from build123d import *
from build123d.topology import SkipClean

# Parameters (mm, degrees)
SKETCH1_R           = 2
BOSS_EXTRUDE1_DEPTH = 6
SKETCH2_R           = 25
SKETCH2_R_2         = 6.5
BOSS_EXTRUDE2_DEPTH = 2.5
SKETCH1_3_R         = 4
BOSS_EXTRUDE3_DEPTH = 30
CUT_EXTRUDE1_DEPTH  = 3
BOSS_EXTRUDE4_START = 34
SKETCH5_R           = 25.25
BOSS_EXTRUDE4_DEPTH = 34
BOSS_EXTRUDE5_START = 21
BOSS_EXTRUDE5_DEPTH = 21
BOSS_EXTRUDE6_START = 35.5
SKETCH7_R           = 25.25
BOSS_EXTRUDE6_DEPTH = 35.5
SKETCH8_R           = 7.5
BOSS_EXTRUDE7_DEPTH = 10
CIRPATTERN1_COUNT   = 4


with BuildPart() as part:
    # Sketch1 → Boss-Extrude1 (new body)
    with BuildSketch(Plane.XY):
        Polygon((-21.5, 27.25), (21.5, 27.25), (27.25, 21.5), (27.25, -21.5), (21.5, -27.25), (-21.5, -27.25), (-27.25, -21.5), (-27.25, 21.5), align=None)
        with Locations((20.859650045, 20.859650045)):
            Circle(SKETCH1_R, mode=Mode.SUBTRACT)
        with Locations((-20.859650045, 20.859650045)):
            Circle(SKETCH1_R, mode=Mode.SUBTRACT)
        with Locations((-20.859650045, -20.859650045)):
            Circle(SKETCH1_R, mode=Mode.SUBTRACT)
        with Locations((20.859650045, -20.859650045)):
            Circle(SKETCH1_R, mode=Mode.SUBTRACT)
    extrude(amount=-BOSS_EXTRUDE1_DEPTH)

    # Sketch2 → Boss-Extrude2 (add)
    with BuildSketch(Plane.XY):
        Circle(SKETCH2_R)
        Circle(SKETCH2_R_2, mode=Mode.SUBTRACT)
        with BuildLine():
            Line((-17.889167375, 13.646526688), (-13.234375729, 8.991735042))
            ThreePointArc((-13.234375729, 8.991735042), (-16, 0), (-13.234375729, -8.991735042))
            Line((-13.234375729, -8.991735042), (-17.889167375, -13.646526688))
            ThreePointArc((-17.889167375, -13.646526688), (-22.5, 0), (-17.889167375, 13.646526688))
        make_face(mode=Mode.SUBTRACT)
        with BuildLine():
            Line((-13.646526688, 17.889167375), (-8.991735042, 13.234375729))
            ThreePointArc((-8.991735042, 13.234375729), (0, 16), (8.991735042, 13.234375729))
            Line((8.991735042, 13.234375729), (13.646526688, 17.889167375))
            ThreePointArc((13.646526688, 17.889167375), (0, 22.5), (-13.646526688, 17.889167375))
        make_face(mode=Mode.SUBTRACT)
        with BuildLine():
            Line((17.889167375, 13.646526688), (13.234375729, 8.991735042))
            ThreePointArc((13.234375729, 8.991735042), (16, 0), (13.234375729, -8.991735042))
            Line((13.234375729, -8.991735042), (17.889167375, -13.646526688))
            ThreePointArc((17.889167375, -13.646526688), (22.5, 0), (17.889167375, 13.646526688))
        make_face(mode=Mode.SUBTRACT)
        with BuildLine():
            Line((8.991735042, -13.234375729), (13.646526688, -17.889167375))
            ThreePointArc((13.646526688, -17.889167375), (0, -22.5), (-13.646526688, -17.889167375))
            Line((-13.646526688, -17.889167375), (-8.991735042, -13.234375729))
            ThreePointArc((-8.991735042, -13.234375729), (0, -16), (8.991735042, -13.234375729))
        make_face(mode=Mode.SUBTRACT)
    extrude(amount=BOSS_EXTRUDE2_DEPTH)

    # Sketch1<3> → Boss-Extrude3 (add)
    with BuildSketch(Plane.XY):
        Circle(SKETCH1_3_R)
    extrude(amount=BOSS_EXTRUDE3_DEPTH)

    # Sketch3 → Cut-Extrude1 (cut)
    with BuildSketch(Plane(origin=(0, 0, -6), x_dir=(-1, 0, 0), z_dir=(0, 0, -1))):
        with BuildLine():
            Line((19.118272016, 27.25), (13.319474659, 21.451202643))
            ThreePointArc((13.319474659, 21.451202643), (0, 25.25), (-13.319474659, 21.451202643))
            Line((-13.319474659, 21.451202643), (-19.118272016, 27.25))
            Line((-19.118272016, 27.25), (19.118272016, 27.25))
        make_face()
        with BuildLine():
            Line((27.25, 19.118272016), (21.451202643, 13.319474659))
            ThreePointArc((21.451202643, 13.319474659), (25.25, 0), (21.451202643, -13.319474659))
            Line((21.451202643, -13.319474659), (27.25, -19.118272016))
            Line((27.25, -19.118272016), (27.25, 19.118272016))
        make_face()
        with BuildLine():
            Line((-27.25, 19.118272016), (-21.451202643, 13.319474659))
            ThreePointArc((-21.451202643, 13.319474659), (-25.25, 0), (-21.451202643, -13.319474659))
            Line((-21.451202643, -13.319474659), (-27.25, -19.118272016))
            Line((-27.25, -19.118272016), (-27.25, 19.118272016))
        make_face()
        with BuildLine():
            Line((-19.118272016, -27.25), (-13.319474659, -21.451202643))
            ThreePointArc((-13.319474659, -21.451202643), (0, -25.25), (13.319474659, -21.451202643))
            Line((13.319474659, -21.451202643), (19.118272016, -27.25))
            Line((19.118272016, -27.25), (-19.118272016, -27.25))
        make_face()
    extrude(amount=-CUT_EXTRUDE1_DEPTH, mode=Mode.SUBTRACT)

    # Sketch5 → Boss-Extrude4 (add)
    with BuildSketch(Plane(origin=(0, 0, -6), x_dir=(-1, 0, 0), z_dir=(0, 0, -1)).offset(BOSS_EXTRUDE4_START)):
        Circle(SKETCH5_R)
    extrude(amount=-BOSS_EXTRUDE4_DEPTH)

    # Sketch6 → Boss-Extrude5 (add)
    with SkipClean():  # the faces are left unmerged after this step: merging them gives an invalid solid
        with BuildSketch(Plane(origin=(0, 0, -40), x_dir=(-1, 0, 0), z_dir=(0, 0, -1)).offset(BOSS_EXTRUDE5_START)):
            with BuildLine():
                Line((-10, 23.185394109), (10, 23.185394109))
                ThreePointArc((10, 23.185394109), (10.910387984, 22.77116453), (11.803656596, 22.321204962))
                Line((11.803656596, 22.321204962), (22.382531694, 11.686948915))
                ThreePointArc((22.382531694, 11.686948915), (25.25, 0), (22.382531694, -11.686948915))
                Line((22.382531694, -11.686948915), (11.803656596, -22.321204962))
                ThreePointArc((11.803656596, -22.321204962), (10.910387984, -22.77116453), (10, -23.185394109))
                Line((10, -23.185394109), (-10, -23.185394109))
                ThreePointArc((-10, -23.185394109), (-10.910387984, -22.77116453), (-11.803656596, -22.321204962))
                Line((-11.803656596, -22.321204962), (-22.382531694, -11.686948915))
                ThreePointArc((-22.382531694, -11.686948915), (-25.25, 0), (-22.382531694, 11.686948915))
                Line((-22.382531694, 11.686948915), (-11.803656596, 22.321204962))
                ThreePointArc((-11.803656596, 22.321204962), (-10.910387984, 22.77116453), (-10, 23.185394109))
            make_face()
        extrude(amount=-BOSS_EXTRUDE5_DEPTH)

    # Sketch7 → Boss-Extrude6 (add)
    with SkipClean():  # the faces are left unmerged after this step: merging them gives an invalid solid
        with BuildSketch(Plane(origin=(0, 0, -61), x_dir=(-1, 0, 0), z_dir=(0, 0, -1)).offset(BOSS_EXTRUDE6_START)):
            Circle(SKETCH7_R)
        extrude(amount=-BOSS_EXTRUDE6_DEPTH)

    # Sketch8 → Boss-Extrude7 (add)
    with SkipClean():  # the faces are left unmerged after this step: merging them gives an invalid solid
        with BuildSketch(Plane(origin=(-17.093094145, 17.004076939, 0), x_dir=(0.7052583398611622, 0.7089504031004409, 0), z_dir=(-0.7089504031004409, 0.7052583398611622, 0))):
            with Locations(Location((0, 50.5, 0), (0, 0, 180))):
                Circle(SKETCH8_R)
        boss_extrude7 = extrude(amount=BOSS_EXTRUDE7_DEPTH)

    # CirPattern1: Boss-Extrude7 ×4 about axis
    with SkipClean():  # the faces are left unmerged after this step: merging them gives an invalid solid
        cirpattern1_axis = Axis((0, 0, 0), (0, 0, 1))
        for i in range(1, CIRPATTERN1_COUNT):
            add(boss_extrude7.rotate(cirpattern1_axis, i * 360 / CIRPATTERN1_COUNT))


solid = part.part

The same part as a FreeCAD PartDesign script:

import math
import FreeCAD as App
import Part
import Sketcher
from FreeCAD import Vector


def add_polygon(sketch, points):
    """Adds a closed chain of lines whose ends are joined by coincident constraints."""
    first, n = sketch.GeometryCount, len(points)
    for a, b in zip(points, points[1:] + points[:1]):
        sketch.addGeometry(Part.LineSegment(App.Vector(*a, 0), App.Vector(*b, 0)), False)
    for i in range(n):
        sketch.addConstraint(Sketcher.Constraint("Coincident", first + i, 2, first + (i + 1) % n, 1))

doc = App.newDocument("Part")
body = doc.addObject("PartDesign::Body", "Body")

# Sketch on XY plane
sketch1 = doc.addObject("Sketcher::SketchObject", "Sketch")
body.addObject(sketch1)
sketch1.AttachmentSupport = (doc.XY_Plane, [""])
sketch1.MapMode = "FlatFace"
add_polygon(sketch1, [(21.5, 27.2), (-21.5, 27.2), (-27.2, 21.5), (-27.2, -21.5), (-21.5, -27.2), (21.5, -27.2), (27.2, -21.5), (27.2, 21.5)])  # lines 0-7
sketch1.addGeometry(Part.Circle(Vector(20.9, -20.9, 0), Vector(0, 0, 1), 2), False)  # 8
sketch1.addGeometry(Part.Circle(Vector(-20.9, -20.9, 0), Vector(0, 0, 1), 2), False)  # 9
sketch1.addGeometry(Part.Circle(Vector(20.9, 20.9, 0), Vector(0, 0, 1), 2), False)  # 10
sketch1.addGeometry(Part.Circle(Vector(-20.9, 20.9, 0), Vector(0, 0, 1), 2), False)  # 11
sketch1.addConstraint([
    Sketcher.Constraint("Horizontal", 0),
    Sketcher.Constraint("Vertical", 2),
    Sketcher.Constraint("Horizontal", 4),
    Sketcher.Constraint("Vertical", 6),
    Sketcher.Constraint("Equal", 8, 9),
    Sketcher.Constraint("Equal", 9, 10),
    Sketcher.Constraint("Equal", 10, 11),
    Sketcher.Constraint("Symmetric", 9, 3, 10, 3, -1, 1),
    Sketcher.Constraint("Symmetric", 8, 3, 11, 3, -1, 1),
    Sketcher.Constraint("Symmetric", 0, 2, 4, 2, -1, 1),
    Sketcher.Constraint("Symmetric", 1, 2, 5, 2, -1, 1),
    Sketcher.Constraint("Symmetric", 8, 3, 9, 3, -2),
    Sketcher.Constraint("Perpendicular", 1, 3),
    Sketcher.Constraint("Perpendicular", 5, 7),
    Sketcher.Constraint("Horizontal", 2, 2, 5, 2),
    Sketcher.Constraint("Horizontal", 1, 2, 6, 2),
    Sketcher.Constraint("Vertical", 0, 2, 3, 2),
    Sketcher.Constraint("Equal", 4, 2),
    Sketcher.Constraint("Diameter", 8, 4.0),
    Sketcher.Constraint("DistanceX", 0, 2, 0, 1, 43.0),
    Sketcher.Constraint("DistanceY", -1, 1, 0, 2, 27.25),
    Sketcher.Constraint("DistanceX", 9, 3, 8, 3, 41.7193),
    Sketcher.Constraint("DistanceY", 8, 3, 10, 3, 41.7193),
])
pad1 = doc.addObject("PartDesign::Pad", "Pad")
body.addObject(pad1)
pad1.Profile = sketch1
pad1.Length = 6
pad1.Reversed = True

# Sketch on XY plane
sketch2 = doc.addObject("Sketcher::SketchObject", "Sketch001")
body.addObject(sketch2)
sketch2.AttachmentSupport = (doc.XY_Plane, [""])
sketch2.MapMode = "FlatFace"
sketch2.addGeometry([
    Part.Circle(Vector(0, 0, 0), Vector(0, 0, 1), 25),  # 0
    Part.ArcOfCircle(Part.Circle(Vector(0, 0, 0), Vector(0, 0, 1), 16), math.radians(-124), math.radians(-56)),  # 1
    Part.LineSegment(Vector(9, -13, 0), Vector(14, -18, 0)),  # 2
    Part.ArcOfCircle(Part.Circle(Vector(0, 0, 0), Vector(0, 0, 1), 23), math.radians(-127), math.radians(-53)),  # 3
    Part.LineSegment(Vector(-14, -18, 0), Vector(-9, -13, 0)),  # 4
    Part.ArcOfCircle(Part.Circle(Vector(0, 0, 0), Vector(0, 0, 1), 23), math.radians(143), math.radians(217)),  # 5
    Part.LineSegment(Vector(-18, 14, 0), Vector(-13, 9, 0)),  # 6
    Part.ArcOfCircle(Part.Circle(Vector(0, 0, 0), Vector(0, 0, 1), 16), math.radians(146), math.radians(214)),  # 7
    Part.LineSegment(Vector(-13, -9, 0), Vector(-18, -14, 0)),  # 8
    Part.Circle(Vector(0, 0, 0), Vector(0, 0, 1), 6),  # 9
    Part.LineSegment(Vector(13, 9, 0), Vector(18, 14, 0)),  # 10
    Part.ArcOfCircle(Part.Circle(Vector(0, 0, 0), Vector(0, 0, 1), 23), math.radians(-37), math.radians(37)),  # 11
    Part.LineSegment(Vector(18, -14, 0), Vector(13, -9, 0)),  # 12
    Part.ArcOfCircle(Part.Circle(Vector(0, 0, 0), Vector(0, 0, 1), 16), math.radians(-34), math.radians(34)),  # 13
    Part.LineSegment(Vector(-9, 13, 0), Vector(-14, 18, 0)),  # 14
    Part.ArcOfCircle(Part.Circle(Vector(0, 0, 0), Vector(0, 0, 1), 23), math.radians(53), math.radians(127)),  # 15
    Part.LineSegment(Vector(14, 18, 0), Vector(9, 13, 0)),  # 16
    Part.ArcOfCircle(Part.Circle(Vector(0, 0, 0), Vector(0, 0, 1), 16), math.radians(56), math.radians(124)),  # 17
], False)
sketch2.addConstraint([
    Sketcher.Constraint("Coincident", 1, 2, 2, 1),
    Sketcher.Constraint("Coincident", 2, 2, 3, 2),
    Sketcher.Constraint("Coincident", 3, 1, 4, 1),
    Sketcher.Constraint("Coincident", 4, 2, 1, 1),
    Sketcher.Constraint("Coincident", 5, 1, 6, 1),
    Sketcher.Constraint("Coincident", 6, 2, 7, 1),
    Sketcher.Constraint("Coincident", 7, 2, 8, 1),
    Sketcher.Constraint("Coincident", 8, 2, 5, 2),
    Sketcher.Constraint("Coincident", 10, 2, 11, 2),
    Sketcher.Constraint("Coincident", 11, 1, 12, 1),
    Sketcher.Constraint("Coincident", 12, 2, 13, 1),
    Sketcher.Constraint("Coincident", 13, 2, 10, 1),
    Sketcher.Constraint("Coincident", 14, 2, 15, 2),
    Sketcher.Constraint("Coincident", 15, 1, 16, 1),
    Sketcher.Constraint("Coincident", 16, 2, 17, 1),
    Sketcher.Constraint("Coincident", 17, 2, 14, 1),
    Sketcher.Constraint("Coincident", 0, 3, -1, 1),
    Sketcher.Constraint("Coincident", 1, 3, -1, 1),
    Sketcher.Constraint("Coincident", 3, 3, -1, 1),
    Sketcher.Constraint("Coincident", 5, 3, -1, 1),
    Sketcher.Constraint("Coincident", 7, 3, -1, 1),
    Sketcher.Constraint("Coincident", 9, 3, -1, 1),
    Sketcher.Constraint("Coincident", 11, 3, -1, 1),
    Sketcher.Constraint("Coincident", 13, 3, -1, 1),
    Sketcher.Constraint("Coincident", 15, 3, -1, 1),
    Sketcher.Constraint("Coincident", 17, 3, -1, 1),
    Sketcher.Constraint("Equal", 3, 5),
    Sketcher.Constraint("Equal", 1, 7),
    Sketcher.Constraint("Equal", 5, 11),
    Sketcher.Constraint("Equal", 7, 13),
    Sketcher.Constraint("Equal", 11, 15),
    Sketcher.Constraint("Equal", 13, 17),
    Sketcher.Constraint("Perpendicular", 2, 4),
    Sketcher.Constraint("Perpendicular", 4, 6),
    Sketcher.Constraint("Perpendicular", 6, 8),
    Sketcher.Constraint("Parallel", 8, 10),
    Sketcher.Constraint("Perpendicular", 10, 12),
    Sketcher.Constraint("Parallel", 12, 14),
    Sketcher.Constraint("Perpendicular", 14, 16),
    Sketcher.Constraint("Horizontal", 2, 2, 3, 1),
    Sketcher.Constraint("Horizontal", 1, 2, 4, 2),
    Sketcher.Constraint("Horizontal", 5, 1, 10, 2),
    Sketcher.Constraint("Horizontal", 8, 2, 11, 1),
    Sketcher.Constraint("Horizontal", 14, 2, 15, 1),
    Sketcher.Constraint("Vertical", 6, 2, 7, 2),
    Sketcher.Constraint("Vertical", 3, 1, 14, 2),
    Sketcher.Constraint("Equal", 4, 6),
    Sketcher.Constraint("Diameter", 0, 50.0),
    Sketcher.Constraint("Diameter", 9, 13.0),
    Sketcher.Constraint("Radius", 1, 16.0),
    Sketcher.Constraint("Radius", 3, 22.5),
    Sketcher.Constraint("Distance", 2, 6.582869),
])
pad2 = doc.addObject("PartDesign::Pad", "Pad001")
body.addObject(pad2)
pad2.Profile = sketch2
pad2.Length = 2.5

# Sketch on XY plane
sketch3 = doc.addObject("Sketcher::SketchObject", "Sketch002")
body.addObject(sketch3)
sketch3.AttachmentSupport = (doc.XY_Plane, [""])
sketch3.MapMode = "FlatFace"
sketch3.addGeometry(Part.Circle(Vector(0, 0, 0), Vector(0, 0, 1), 4), False)
sketch3.addConstraint([
    Sketcher.Constraint("Coincident", 0, 3, -1, 1),
    Sketcher.Constraint("Diameter", 0, 8.0),
])
pad3 = doc.addObject("PartDesign::Pad", "Pad002")
body.addObject(pad3)
pad3.Profile = sketch3
pad3.Length = 30

# Sketch on XY plane
sketch4 = doc.addObject("Sketcher::SketchObject", "Sketch003")
body.addObject(sketch4)
sketch4.AttachmentSupport = (doc.XY_Plane, [""])
sketch4.MapMode = "FlatFace"
sketch4.AttachmentOffset = App.Placement(Vector(0, 0, -6), App.Rotation())
sketch4.addGeometry([
    Part.LineSegment(Vector(-13, 21, 0), Vector(-19, 27, 0)),  # 0
    Part.LineSegment(Vector(-19, 27, 0), Vector(19, 27, 0)),  # 1
    Part.LineSegment(Vector(19, 27, 0), Vector(13, 21, 0)),  # 2
    Part.ArcOfCircle(Part.Circle(Vector(0, 0, 0), Vector(0, 0, 1), 25), math.radians(58), math.radians(122)),  # 3
    Part.LineSegment(Vector(-27, 19, 0), Vector(-21, 13, 0)),  # 4
    Part.ArcOfCircle(Part.Circle(Vector(0, 0, 0), Vector(0, 0, 1), 25), math.radians(148), math.radians(212)),  # 5
    Part.LineSegment(Vector(-21, -13, 0), Vector(-27, -19, 0)),  # 6
    Part.LineSegment(Vector(-27, -19, 0), Vector(-27, 19, 0)),  # 7
    Part.LineSegment(Vector(21, 13, 0), Vector(27, 19, 0)),  # 8
    Part.LineSegment(Vector(27, 19, 0), Vector(27, -19, 0)),  # 9
    Part.LineSegment(Vector(27, -19, 0), Vector(21, -13, 0)),  # 10
    Part.ArcOfCircle(Part.Circle(Vector(0, 0, 0), Vector(0, 0, 1), 25), math.radians(-32), math.radians(32)),  # 11
    Part.LineSegment(Vector(13, -21, 0), Vector(19, -27, 0)),  # 12
    Part.LineSegment(Vector(19, -27, 0), Vector(-19, -27, 0)),  # 13
    Part.LineSegment(Vector(-19, -27, 0), Vector(-13, -21, 0)),  # 14
    Part.ArcOfCircle(Part.Circle(Vector(0, 0, 0), Vector(0, 0, 1), 25), math.radians(-122), math.radians(-58)),  # 15
], False)
sketch4.addConstraint([
    Sketcher.Constraint("Coincident", 0, 2, 1, 1),
    Sketcher.Constraint("Coincident", 1, 2, 2, 1),
    Sketcher.Constraint("Coincident", 2, 2, 3, 1),
    Sketcher.Constraint("Coincident", 3, 2, 0, 1),
    Sketcher.Constraint("Coincident", 4, 2, 5, 1),
    Sketcher.Constraint("Coincident", 5, 2, 6, 1),
    Sketcher.Constraint("Coincident", 6, 2, 7, 1),
    Sketcher.Constraint("Coincident", 7, 2, 4, 1),
    Sketcher.Constraint("Coincident", 8, 2, 9, 1),
    Sketcher.Constraint("Coincident", 9, 2, 10, 1),
    Sketcher.Constraint("Coincident", 10, 2, 11, 1),
    Sketcher.Constraint("Coincident", 11, 2, 8, 1),
    Sketcher.Constraint("Coincident", 12, 2, 13, 1),
    Sketcher.Constraint("Coincident", 13, 2, 14, 1),
    Sketcher.Constraint("Coincident", 14, 2, 15, 1),
    Sketcher.Constraint("Coincident", 15, 2, 12, 1),
    Sketcher.Constraint("Horizontal", 1),
    Sketcher.Constraint("Vertical", 7),
    Sketcher.Constraint("Vertical", 9),
    Sketcher.Constraint("Horizontal", 13),
    Sketcher.Constraint("Coincident", 3, 3, -1, 1),
    Sketcher.Constraint("Coincident", 5, 3, -1, 1),
    Sketcher.Constraint("Coincident", 11, 3, -1, 1),
    Sketcher.Constraint("Coincident", 15, 3, -1, 1),
    Sketcher.Constraint("Equal", 3, 5),
    Sketcher.Constraint("Equal", 5, 11),
    Sketcher.Constraint("Equal", 11, 15),
    Sketcher.Constraint("Symmetric", 6, 2, 8, 2, -1, 1),
    Sketcher.Constraint("Symmetric", 0, 2, 12, 2, -1, 1),
    Sketcher.Constraint("Perpendicular", 0, 2),
    Sketcher.Constraint("Perpendicular", 2, 4),
    Sketcher.Constraint("Perpendicular", 4, 6),
    Sketcher.Constraint("Parallel", 6, 8),
    Sketcher.Constraint("Perpendicular", 8, 10),
    Sketcher.Constraint("Parallel", 10, 12),
    Sketcher.Constraint("Perpendicular", 12, 14),
    Sketcher.Constraint("Horizontal", 2, 2, 3, 2),
    Sketcher.Constraint("Horizontal", 7, 2, 8, 2),
    Sketcher.Constraint("Horizontal", 6, 2, 9, 2),
    Sketcher.Constraint("Horizontal", 5, 2, 10, 2),
    Sketcher.Constraint("Horizontal", 14, 2, 15, 2),
    Sketcher.Constraint("Equal", 13, 7),
    Sketcher.Constraint("Equal", 2, 4),
    Sketcher.Constraint("Radius", 3, 25.25),
    Sketcher.Constraint("DistanceY", -1, 1, 0, 2, 27.25),
    Sketcher.Constraint("DistanceX", 1, 1, 1, 2, 38.236544),
])
pocket1 = doc.addObject("PartDesign::Pocket", "Pocket")
body.addObject(pocket1)
pocket1.Profile = sketch4
pocket1.Length = 3
pocket1.Reversed = True

# Sketch on XY plane
sketch5 = doc.addObject("Sketcher::SketchObject", "Sketch004")
body.addObject(sketch5)
sketch5.AttachmentSupport = (doc.XY_Plane, [""])
sketch5.MapMode = "FlatFace"
sketch5.AttachmentOffset = App.Placement(Vector(0, 0, -40), App.Rotation())
sketch5.addGeometry(Part.Circle(Vector(0, 0, 0), Vector(0, 0, 1), 25), False)
sketch5.addConstraint([
    Sketcher.Constraint("Coincident", 0, 3, -1, 1),
    Sketcher.Constraint("Diameter", 0, 50.5),
])
pad4 = doc.addObject("PartDesign::Pad", "Pad003")
body.addObject(pad4)
pad4.Profile = sketch5
pad4.Length = 34

# Sketch on XY plane
sketch6 = doc.addObject("Sketcher::SketchObject", "Sketch005")
body.addObject(sketch6)
sketch6.AttachmentSupport = (doc.XY_Plane, [""])
sketch6.MapMode = "FlatFace"
sketch6.AttachmentOffset = App.Placement(Vector(0, 0, -61), App.Rotation())
sketch6.addGeometry([
    Part.LineSegment(Vector(-10, 23.2, 0), Vector(10, 23.2, 0)),  # 0
    Part.ArcOfCircle(Part.Circle(Vector(0, 0, 0), Vector(0, 0, 1), 25.2), math.radians(62.13), math.radians(66.67)),  # 1
    Part.LineSegment(Vector(11.8, 22.3, 0), Vector(22.4, 11.7, 0)),  # 2
    Part.ArcOfCircle(Part.Circle(Vector(0, 0, 0), Vector(0, 0, 1), 25.2), math.radians(-28), math.radians(28)),  # 3
    Part.LineSegment(Vector(22.4, -11.7, 0), Vector(11.8, -22.3, 0)),  # 4
    Part.ArcOfCircle(Part.Circle(Vector(0, 0, 0), Vector(0, 0, 1), 25.2), math.radians(-66.67), math.radians(-62.13)),  # 5
    Part.LineSegment(Vector(10, -23.2, 0), Vector(-10, -23.2, 0)),  # 6
    Part.ArcOfCircle(Part.Circle(Vector(0, 0, 0), Vector(0, 0, 1), 25.2), math.radians(-117.87), math.radians(-113.33)),  # 7
    Part.LineSegment(Vector(-11.8, -22.3, 0), Vector(-22.4, -11.7, 0)),  # 8
    Part.ArcOfCircle(Part.Circle(Vector(0, 0, 0), Vector(0, 0, 1), 25.2), math.radians(152), math.radians(208)),  # 9
    Part.LineSegment(Vector(-22.4, 11.7, 0), Vector(-11.8, 22.3, 0)),  # 10
    Part.ArcOfCircle(Part.Circle(Vector(0, 0, 0), Vector(0, 0, 1), 25.2), math.radians(113.33), math.radians(117.87)),  # 11
], False)
sketch6.addConstraint([
    Sketcher.Constraint("Coincident", 0, 2, 1, 2),
    Sketcher.Constraint("Coincident", 1, 1, 2, 1),
    Sketcher.Constraint("Coincident", 2, 2, 3, 2),
    Sketcher.Constraint("Coincident", 3, 1, 4, 1),
    Sketcher.Constraint("Coincident", 4, 2, 5, 2),
    Sketcher.Constraint("Coincident", 5, 1, 6, 1),
    Sketcher.Constraint("Coincident", 6, 2, 7, 2),
    Sketcher.Constraint("Coincident", 7, 1, 8, 1),
    Sketcher.Constraint("Coincident", 8, 2, 9, 2),
    Sketcher.Constraint("Coincident", 9, 1, 10, 1),
    Sketcher.Constraint("Coincident", 10, 2, 11, 2),
    Sketcher.Constraint("Coincident", 11, 1, 0, 1),
    Sketcher.Constraint("Horizontal", 0),
    Sketcher.Constraint("Horizontal", 6),
    Sketcher.Constraint("Coincident", 1, 3, -1, 1),
    Sketcher.Constraint("Coincident", 3, 3, -1, 1),
    Sketcher.Constraint("Coincident", 5, 3, -1, 1),
    Sketcher.Constraint("Coincident", 7, 3, -1, 1),
    Sketcher.Constraint("Coincident", 9, 3, -1, 1),
    Sketcher.Constraint("Coincident", 11, 3, -1, 1),
    Sketcher.Constraint("Equal", 1, 3),
    Sketcher.Constraint("Equal", 3, 5),
    Sketcher.Constraint("Equal", 5, 7),
    Sketcher.Constraint("Equal", 7, 9),
    Sketcher.Constraint("Equal", 9, 11),
    Sketcher.Constraint("Parallel", 2, 8),
    Sketcher.Constraint("Parallel", 4, 10),
    Sketcher.Constraint("Horizontal", 4, 2, 7, 1),
    Sketcher.Constraint("Horizontal", 3, 1, 8, 2),
    Sketcher.Constraint("Horizontal", 2, 2, 9, 1),
    Sketcher.Constraint("Vertical", 2, 2, 3, 1),
    Sketcher.Constraint("Vertical", 0, 2, 5, 1),
    Sketcher.Constraint("DistanceX", 0, 1, 0, 2, 20.0),
    Sketcher.Constraint("Radius", 1, 25.249999),
    Sketcher.Constraint("Distance", 2, 15.0),
    Sketcher.Constraint("DistanceX", -1, 1, 2, 2, 22.382532),
])
pad5 = doc.addObject("PartDesign::Pad", "Pad004")
body.addObject(pad5)
pad5.Profile = sketch6
pad5.Length = 21

# Sketch on XY plane
sketch7 = doc.addObject("Sketcher::SketchObject", "Sketch006")
body.addObject(sketch7)
sketch7.AttachmentSupport = (doc.XY_Plane, [""])
sketch7.MapMode = "FlatFace"
sketch7.AttachmentOffset = App.Placement(Vector(0, 0, -96.5), App.Rotation())
sketch7.addGeometry(Part.Circle(Vector(0, 0, 0), Vector(0, 0, 1), 25), False)
sketch7.addConstraint([
    Sketcher.Constraint("Coincident", 0, 3, -1, 1),
    Sketcher.Constraint("Diameter", 0, 50.5),
])
pad6 = doc.addObject("PartDesign::Pad", "Pad005")
body.addObject(pad6)
pad6.Profile = sketch7
pad6.Length = 35.5

# Sketch on an angled plane
sketch8 = doc.addObject("Sketcher::SketchObject", "Sketch007")
body.addObject(sketch8)
sketch8.Placement = App.Placement(Vector(-17.093094, 17.004077, 0), App.Rotation(Vector(0.70525834, 0.708950403, 0), Vector(0, 0, -1), Vector(-0.708950403, 0.70525834, 0), "ZXY"))
sketch8.addGeometry(Part.Circle(Vector(0, 51, 0), Vector(0, 0, 1), 8), False)
sketch8.addConstraint([
    Sketcher.Constraint("PointOnObject", 0, 3, -2),
    Sketcher.Constraint("Diameter", 0, 15.0),
    Sketcher.Constraint("DistanceY", -1, 1, 0, 3, 50.5),
])
pad7 = doc.addObject("PartDesign::Pad", "Pad006")
body.addObject(pad7)
pad7.Profile = sketch8
pad7.Length = 10
doc.recompute()

polarpattern = doc.addObject("PartDesign::PolarPattern", "PolarPattern")
body.addObject(polarpattern)
polarpattern.Originals = [pad7]
polarpattern.Axis = (doc.Z_Axis, [""])
polarpattern.Angle = 360
polarpattern.Occurrences = 4
body.Tip = polarpattern

doc.recompute()
